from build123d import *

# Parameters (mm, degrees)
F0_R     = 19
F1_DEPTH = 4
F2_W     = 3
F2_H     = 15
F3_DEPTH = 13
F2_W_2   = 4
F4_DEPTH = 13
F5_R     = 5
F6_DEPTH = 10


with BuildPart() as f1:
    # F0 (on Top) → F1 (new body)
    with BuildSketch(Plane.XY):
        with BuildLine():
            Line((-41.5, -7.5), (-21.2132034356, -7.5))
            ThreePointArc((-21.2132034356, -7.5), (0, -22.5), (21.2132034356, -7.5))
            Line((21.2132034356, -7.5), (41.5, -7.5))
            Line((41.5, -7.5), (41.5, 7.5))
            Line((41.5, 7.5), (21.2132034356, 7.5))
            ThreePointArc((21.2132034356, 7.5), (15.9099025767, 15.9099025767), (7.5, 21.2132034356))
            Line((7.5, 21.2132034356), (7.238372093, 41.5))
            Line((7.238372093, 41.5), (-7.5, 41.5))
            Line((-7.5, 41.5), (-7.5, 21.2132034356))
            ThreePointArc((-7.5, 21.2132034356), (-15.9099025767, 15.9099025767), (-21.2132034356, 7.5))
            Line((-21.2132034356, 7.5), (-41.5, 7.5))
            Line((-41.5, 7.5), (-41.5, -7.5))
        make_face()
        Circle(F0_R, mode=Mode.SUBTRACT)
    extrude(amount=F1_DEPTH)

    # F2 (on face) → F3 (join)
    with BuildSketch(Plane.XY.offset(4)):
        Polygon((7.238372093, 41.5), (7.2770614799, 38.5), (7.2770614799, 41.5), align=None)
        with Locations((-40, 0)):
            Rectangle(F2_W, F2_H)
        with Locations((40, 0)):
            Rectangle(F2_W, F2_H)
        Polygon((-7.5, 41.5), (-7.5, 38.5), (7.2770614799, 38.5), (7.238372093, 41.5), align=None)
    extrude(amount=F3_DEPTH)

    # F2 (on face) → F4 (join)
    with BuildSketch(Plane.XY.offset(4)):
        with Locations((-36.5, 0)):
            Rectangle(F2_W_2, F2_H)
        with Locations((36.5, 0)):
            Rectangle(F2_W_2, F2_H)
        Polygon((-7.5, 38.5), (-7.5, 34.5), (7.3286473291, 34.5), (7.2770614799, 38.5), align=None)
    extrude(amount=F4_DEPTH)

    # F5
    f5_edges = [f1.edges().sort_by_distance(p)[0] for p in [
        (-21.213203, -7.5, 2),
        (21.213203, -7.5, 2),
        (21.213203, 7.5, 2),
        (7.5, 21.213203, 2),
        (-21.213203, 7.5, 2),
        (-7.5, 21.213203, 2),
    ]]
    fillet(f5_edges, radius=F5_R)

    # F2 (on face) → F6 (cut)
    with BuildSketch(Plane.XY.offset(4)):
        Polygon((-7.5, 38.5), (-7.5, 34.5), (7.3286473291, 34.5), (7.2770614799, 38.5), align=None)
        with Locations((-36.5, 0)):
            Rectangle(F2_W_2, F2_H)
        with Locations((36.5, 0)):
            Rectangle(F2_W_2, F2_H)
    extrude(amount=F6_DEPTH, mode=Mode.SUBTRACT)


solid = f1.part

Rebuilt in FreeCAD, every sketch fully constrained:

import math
import FreeCAD as App
import Part
import Sketcher

V = App.Vector
Q = App.Units.Quantity


def edges_at(feature, points):
    """Names of the edges that pass closest to the given points."""
    edges = feature.Shape.Edges
    near = lambda p: min(range(len(edges)), key=lambda i: edges[i].distToShape(Part.Vertex(*p))[0])
    return sorted({f"Edge{near(p) + 1}" for p in points})


def add_polygon(sketch, points):
    """Adds a closed chain of lines whose ends are joined by coincident constraints."""
    first, n = sketch.GeometryCount, len(points)
    for a, b in zip(points, points[1:] + points[:1]):
        sketch.addGeometry(Part.LineSegment(App.Vector(*a, 0), App.Vector(*b, 0)), False)
    for i in range(n):
        sketch.addConstraint(Sketcher.Constraint("Coincident", first + i, 2, first + (i + 1) % n, 1))

doc = App.newDocument("Part")
body = doc.addObject("PartDesign::Body", "Body")

# Sketch on XY plane
sketch1 = body.newObject("Sketcher::SketchObject", "Sketch")
sketch1.AttachmentSupport = (doc.getObject("XY_Plane"), [""])
sketch1.MapMode = "FlatFace"
sketch1.addGeometry(Part.LineSegment(V(-42, -8, 0), V(-21, -8, 0)), False)
sketch1.addGeometry(Part.ArcOfCircle(Part.Circle(V(0, 0, 0), V(0, 0, 1), 22), math.radians(-161), math.radians(-19)), False)
sketch1.addGeometry(Part.LineSegment(V(21, -8, 0), V(42, -8, 0)), False)
sketch1.addGeometry(Part.LineSegment(V(42, -8, 0), V(42, 8, 0)), False)
sketch1.addGeometry(Part.LineSegment(V(42, 8, 0), V(21, 8, 0)), False)
sketch1.addGeometry(Part.ArcOfCircle(Part.Circle(V(0, 0, 0), V(0, 0, 1), 22), math.radians(19), math.radians(71)), False)
sketch1.addGeometry(Part.LineSegment(V(8, 21, 0), V(7, 42, 0)), False)
sketch1.addGeometry(Part.LineSegment(V(7, 42, 0), V(-8, 42, 0)), False)
sketch1.addGeometry(Part.LineSegment(V(-8, 42, 0), V(-8, 21, 0)), False)
sketch1.addGeometry(Part.ArcOfCircle(Part.Circle(V(0, 0, 0), V(0, 0, 1), 22), math.radians(109), math.radians(161)), False)
sketch1.addGeometry(Part.LineSegment(V(-21, 8, 0), V(-42, 8, 0)), False)
sketch1.addGeometry(Part.LineSegment(V(-42, 8, 0), V(-42, -8, 0)), False)
sketch1.addGeometry(Part.Circle(V(0, 0, 0), V(0, 0, 1), 19), False)
sketch1.addConstraint(Sketcher.Constraint("Coincident", 0, 2, 1, 1))
sketch1.addConstraint(Sketcher.Constraint("Coincident", 1, 2, 2, 1))
sketch1.addConstraint(Sketcher.Constraint("Coincident", 2, 2, 3, 1))
sketch1.addConstraint(Sketcher.Constraint("Coincident", 3, 2, 4, 1))
sketch1.addConstraint(Sketcher.Constraint("Coincident", 4, 2, 5, 1))
sketch1.addConstraint(Sketcher.Constraint("Coincident", 5, 2, 6, 1))
sketch1.addConstraint(Sketcher.Constraint("Coincident", 6, 2, 7, 1))
sketch1.addConstraint(Sketcher.Constraint("Coincident", 7, 2, 8, 1))
sketch1.addConstraint(Sketcher.Constraint("Coincident", 8, 2, 9, 1))
sketch1.addConstraint(Sketcher.Constraint("Coincident", 9, 2, 10, 1))
sketch1.addConstraint(Sketcher.Constraint("Coincident", 10, 2, 11, 1))
sketch1.addConstraint(Sketcher.Constraint("Coincident", 11, 2, 0, 1))
sketch1.addConstraint(Sketcher.Constraint("Horizontal", 0))
sketch1.addConstraint(Sketcher.Constraint("Horizontal", 2))
sketch1.addConstraint(Sketcher.Constraint("Vertical", 3))
sketch1.addConstraint(Sketcher.Constraint("Horizontal", 4))
sketch1.addConstraint(Sketcher.Constraint("Horizontal", 7))
sketch1.addConstraint(Sketcher.Constraint("Vertical", 8))
sketch1.addConstraint(Sketcher.Constraint("Horizontal", 10))
sketch1.addConstraint(Sketcher.Constraint("Vertical", 11))
sketch1.addConstraint(Sketcher.Constraint("Coincident", 1, 3, -1, 1))
sketch1.addConstraint(Sketcher.Constraint("Coincident", 5, 3, -1, 1))
sketch1.addConstraint(Sketcher.Constraint("Coincident", 9, 3, -1, 1))
sketch1.addConstraint(Sketcher.Constraint("Coincident", 12, 3, -1, 1))
sketch1.addConstraint(Sketcher.Constraint("Equal", 1, 5))
sketch1.addConstraint(Sketcher.Constraint("Equal", 5, 9))
sketch1.addConstraint(Sketcher.Constraint("Symmetric", 2, 2, 10, 2, -1, 1))
sketch1.addConstraint(Sketcher.Constraint("Horizontal", 0, 2, 1, 2))
sketch1.addConstraint(Sketcher.Constraint("Horizontal", 5, 2, 8, 2))
sketch1.addConstraint(Sketcher.Constraint("Horizontal", 4, 2, 9, 2))
sketch1.addConstraint(Sketcher.Constraint("Equal", 10, 8))
sketch1.addConstraint(Sketcher.Constraint("Diameter", 12, Q("38 mm")))
sketch1.addConstraint(Sketcher.Constraint("Radius", 1, Q("22.5 mm")))
sketch1.addConstraint(Sketcher.Constraint("DistanceY", 3, 1, 3, 2, Q("15 mm")))
sketch1.addConstraint(Sketcher.Constraint("DistanceY", 4, 2, 6, 2, Q("34 mm")))
sketch1.addConstraint(Sketcher.Constraint("DistanceX", 7, 2, 5, 2, Q("15 mm")))
sketch1.addConstraint(Sketcher.Constraint("DistanceX", 7, 2, 7, 1, Q("14.738372 mm")))
pad1 = body.newObject("PartDesign::Pad", "Pad")
pad1.Profile = sketch1
pad1.Length = 4

# Sketch on XY plane
sketch2 = body.newObject("Sketcher::SketchObject", "Sketch001")
sketch2.AttachmentSupport = (doc.getObject("XY_Plane"), [""])
sketch2.MapMode = "FlatFace"
sketch2.AttachmentOffset = App.Placement(V(0, 0, 4), App.Rotation())
add_polygon(sketch2, [(7.3, 38.5), (7.3, 41.5), (-7.5, 41.5), (-7.5, 38.5)])  # lines 0-3
add_polygon(sketch2, [(-41.5, 7.5), (-41.5, -7.5), (-38.5, -7.5), (-38.5, 7.5)])  # lines 4-7
add_polygon(sketch2, [(38.5, 7.5), (38.5, -7.5), (41.5, -7.5), (41.5, 7.5)])  # lines 8-11
sketch2.addConstraint(Sketcher.Constraint("Vertical", 0))
sketch2.addConstraint(Sketcher.Constraint("Horizontal", 1))
sketch2.addConstraint(Sketcher.Constraint("Vertical", 2))
sketch2.addConstraint(Sketcher.Constraint("Horizontal", 3))
sketch2.addConstraint(Sketcher.Constraint("Vertical", 4))
sketch2.addConstraint(Sketcher.Constraint("Horizontal", 5))
sketch2.addConstraint(Sketcher.Constraint("Vertical", 6))
sketch2.addConstraint(Sketcher.Constraint("Horizontal", 7))
sketch2.addConstraint(Sketcher.Constraint("Vertical", 8))
sketch2.addConstraint(Sketcher.Constraint("Horizontal", 9))
sketch2.addConstraint(Sketcher.Constraint("Vertical", 10))
sketch2.addConstraint(Sketcher.Constraint("Horizontal", 11))
sketch2.addConstraint(Sketcher.Constraint("Symmetric", 6, 2, 8, 2, -1, 1))
sketch2.addConstraint(Sketcher.Constraint("Symmetric", 4, 2, 10, 2, -1, 1))
sketch2.addConstraint(Sketcher.Constraint("Horizontal", 5, 2, 8, 2))
sketch2.addConstraint(Sketcher.Constraint("Equal", 11, 0))
sketch2.addConstraint(Sketcher.Constraint("DistanceX", 5, 1, 5, 2, Q("3 mm")))
sketch2.addConstraint(Sketcher.Constraint("DistanceY", 4, 2, 4, 1, Q("15 mm")))
sketch2.addConstraint(Sketcher.Constraint("DistanceX", 4, 2, 2, 2, Q("34 mm")))
sketch2.addConstraint(Sketcher.Constraint("DistanceY", 4, 2, 2, 2, Q("46 mm")))
sketch2.addConstraint(Sketcher.Constraint("DistanceX", 2, 2, 8, 2, Q("46 mm")))
sketch2.addConstraint(Sketcher.Constraint("DistanceX", 1, 2, 1, 1, Q("14.777061 mm")))
pad2 = body.newObject("PartDesign::Pad", "Pad001")
pad2.Profile = sketch2
pad2.Length = 13

# Sketch on XY plane
sketch3 = body.newObject("Sketcher::SketchObject", "Sketch002")
sketch3.AttachmentSupport = (doc.getObject("XY_Plane"), [""])
sketch3.MapMode = "FlatFace"
sketch3.AttachmentOffset = App.Placement(V(0, 0, 4), App.Rotation())
add_polygon(sketch3, [(-38.5, 7.5), (-38.5, -7.5), (-34.5, -7.5), (-34.5, 7.5)])  # lines 0-3
add_polygon(sketch3, [(34.5, 7.5), (34.5, -7.5), (38.5, -7.5), (38.5, 7.5)])  # lines 4-7
add_polygon(sketch3, [(-7.5, 38.5), (-7.5, 34.5), (7.3, 34.5), (7.3, 38.5)])  # lines 8-11
sketch3.addConstraint(Sketcher.Constraint("Vertical", 0))
sketch3.addConstraint(Sketcher.Constraint("Horizontal", 1))
sketch3.addConstraint(Sketcher.Constraint("Vertical", 2))
sketch3.addConstraint(Sketcher.Constraint("Horizontal", 3))
sketch3.addConstraint(Sketcher.Constraint("Vertical", 4))
sketch3.addConstraint(Sketcher.Constraint("Horizontal", 5))
sketch3.addConstraint(Sketcher.Constraint("Vertical", 6))
sketch3.addConstraint(Sketcher.Constraint("Horizontal", 7))
sketch3.addConstraint(Sketcher.Constraint("Vertical", 8))
sketch3.addConstraint(Sketcher.Constraint("Horizontal", 9))
sketch3.addConstraint(Sketcher.Constraint("Horizontal", 11))
sketch3.addConstraint(Sketcher.Constraint("Symmetric", 2, 2, 4, 2, -1, 1))
sketch3.addConstraint(Sketcher.Constraint("Symmetric", 0, 2, 6, 2, -1, 1))
sketch3.addConstraint(Sketcher.Constraint("Horizontal", 1, 2, 4, 2))
sketch3.addConstraint(Sketcher.Constraint("Equal", 7, 8))
sketch3.addConstraint(Sketcher.Constraint("DistanceX", 1, 1, 1, 2, Q("4 mm")))
sketch3.addConstraint(Sketcher.Constraint("DistanceY", 0, 2, 0, 1, Q("15 mm")))
sketch3.addConstraint(Sketcher.Constraint("DistanceX", 1, 2, 4, 2, Q("69 mm")))
sketch3.addConstraint(Sketcher.Constraint("DistanceX", 2, 2, 8, 2, Q("27 mm")))
sketch3.addConstraint(Sketcher.Constraint("DistanceY", 2, 2, 8, 2, Q("27 mm")))
sketch3.addConstraint(Sketcher.Constraint("DistanceX", 11, 2, 11, 1, Q("14.777061 mm")))
sketch3.addConstraint(Sketcher.Constraint("DistanceX", 9, 1, 9, 2, Q("14.828647 mm")))
pad3 = body.newObject("PartDesign::Pad", "Pad002")
pad3.Profile = sketch3
pad3.Length = 13
doc.recompute()

fillet = body.newObject("PartDesign::Fillet", "Fillet")
fillet.Base = (pad3, edges_at(pad3, [
    (-21.213, -7.5, 2),
    (21.213, -7.5, 2),
    (21.213, 7.5, 2),
    (7.5, 21.213, 2),
    (-21.213, 7.5, 2),
    (-7.5, 21.213, 2),
]))
fillet.Radius = 5

# Sketch on XY plane
sketch4 = body.newObject("Sketcher::SketchObject", "Sketch003")
sketch4.AttachmentSupport = (doc.getObject("XY_Plane"), [""])
sketch4.MapMode = "FlatFace"
sketch4.AttachmentOffset = App.Placement(V(0, 0, 4), App.Rotation())
add_polygon(sketch4, [(-7.5, 38.5), (-7.5, 34.5), (7.3, 34.5), (7.3, 38.5)])  # lines 0-3
add_polygon(sketch4, [(-38.5, 7.5), (-38.5, -7.5), (-34.5, -7.5), (-34.5, 7.5)])  # lines 4-7
add_polygon(sketch4, [(34.5, 7.5), (34.5, -7.5), (38.5, -7.5), (38.5, 7.5)])  # lines 8-11
sketch4.addConstraint(Sketcher.Constraint("Vertical", 0))
sketch4.addConstraint(Sketcher.Constraint("Horizontal", 1))
sketch4.addConstraint(Sketcher.Constraint("Horizontal", 3))
sketch4.addConstraint(Sketcher.Constraint("Vertical", 4))
sketch4.addConstraint(Sketcher.Constraint("Horizontal", 5))
sketch4.addConstraint(Sketcher.Constraint("Vertical", 6))
sketch4.addConstraint(Sketcher.Constraint("Horizontal", 7))
sketch4.addConstraint(Sketcher.Constraint("Vertical", 8))
sketch4.addConstraint(Sketcher.Constraint("Horizontal", 9))
sketch4.addConstraint(Sketcher.Constraint("Vertical", 10))
sketch4.addConstraint(Sketcher.Constraint("Horizontal", 11))
sketch4.addConstraint(Sketcher.Constraint("Symmetric", 6, 2, 8, 2, -1, 1))
sketch4.addConstraint(Sketcher.Constraint("Symmetric", 4, 2, 10, 2, -1, 1))
sketch4.addConstraint(Sketcher.Constraint("Horizontal", 5, 2, 8, 2))
sketch4.addConstraint(Sketcher.Constraint("Equal", 11, 0))
sketch4.addConstraint(Sketcher.Constraint("DistanceX", 5, 1, 5, 2, Q("4 mm")))
sketch4.addConstraint(Sketcher.Constraint("DistanceY", 4, 2, 4, 1, Q("15 mm")))
sketch4.addConstraint(Sketcher.Constraint("DistanceX", 4, 2, 0, 2, Q("31 mm")))
sketch4.addConstraint(Sketcher.Constraint("DistanceY", 4, 2, 0, 2, Q("42 mm")))
sketch4.addConstraint(Sketcher.Constraint("DistanceX", 0, 2, 8, 2, Q("42 mm")))
sketch4.addConstraint(Sketcher.Constraint("DistanceX", 3, 2, 3, 1, Q("14.777061 mm")))
sketch4.addConstraint(Sketcher.Constraint("DistanceX", 1, 1, 1, 2, Q("14.828647 mm")))
pocket1 = body.newObject("PartDesign::Pocket", "Pocket")
pocket1.Profile = sketch4
pocket1.Length = 10
pocket1.Reversed = True

doc.recompute()
